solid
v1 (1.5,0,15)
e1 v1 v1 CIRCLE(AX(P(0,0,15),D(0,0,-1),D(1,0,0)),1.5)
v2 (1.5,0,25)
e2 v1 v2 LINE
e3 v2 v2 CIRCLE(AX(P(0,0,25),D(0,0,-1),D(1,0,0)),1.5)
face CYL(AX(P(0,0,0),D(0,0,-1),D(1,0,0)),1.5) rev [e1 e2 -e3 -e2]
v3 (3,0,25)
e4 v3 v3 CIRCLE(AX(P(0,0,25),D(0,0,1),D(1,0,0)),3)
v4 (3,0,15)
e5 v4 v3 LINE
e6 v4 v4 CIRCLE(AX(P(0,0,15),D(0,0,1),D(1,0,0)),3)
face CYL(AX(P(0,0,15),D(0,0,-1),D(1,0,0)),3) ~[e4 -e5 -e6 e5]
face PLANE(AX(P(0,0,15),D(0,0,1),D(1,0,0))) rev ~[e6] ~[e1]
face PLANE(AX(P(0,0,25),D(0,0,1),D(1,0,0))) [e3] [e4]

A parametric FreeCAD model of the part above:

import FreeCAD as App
import Part
import Sketcher
from FreeCAD import Vector
Q = App.Units.Quantity

doc = App.newDocument("Part")
body = doc.addObject("PartDesign::Body", "Body")

sketch1 = body.newObject("Sketcher::SketchObject", "Sketch")
sketch1.AttachmentSupport = (doc.getObject("XY_Plane"), [""])
sketch1.MapMode = "FlatFace"
sketch1.addGeometry(Part.Circle(Vector(0, 0, 0), Vector(0, 0, 1), 1.5), False)
sketch1.addConstraint(Sketcher.Constraint("Coincident", 0, 3, -1, 1))
sketch1.addConstraint(Sketcher.Constraint("Diameter", 0, Q("3 mm")))
pad1 = body.newObject("PartDesign::Pad", "Pad")
pad1.Profile = sketch1
pad1.Length = 30
body2 = doc.addObject("PartDesign::Body", "Body001")

sketch2 = body2.newObject("Sketcher::SketchObject", "Sketch001")
sketch2.AttachmentSupport = (doc.getObject("XY_Plane001"), [""])
sketch2.MapMode = "FlatFace"
sketch2.AttachmentOffset = App.Placement(Vector(0, 0, 15), App.Rotation())
sketch2.addGeometry(Part.Circle(Vector(0, 0, 0), Vector(0, 0, 1), 3), False)
sketch2.addConstraint(Sketcher.Constraint("Coincident", 0, 3, -1, 1))
sketch2.addConstraint(Sketcher.Constraint("Diameter", 0, Q("6 mm")))
pad2 = body2.newObject("PartDesign::Pad", "Pad001")
pad2.Profile = sketch2
pad2.Length = 10
doc.recompute()

boolean = body2.newObject("PartDesign::Boolean", "Boolean")
boolean.Type = "Cut"
boolean.addObjects([body])

doc.recompute()
